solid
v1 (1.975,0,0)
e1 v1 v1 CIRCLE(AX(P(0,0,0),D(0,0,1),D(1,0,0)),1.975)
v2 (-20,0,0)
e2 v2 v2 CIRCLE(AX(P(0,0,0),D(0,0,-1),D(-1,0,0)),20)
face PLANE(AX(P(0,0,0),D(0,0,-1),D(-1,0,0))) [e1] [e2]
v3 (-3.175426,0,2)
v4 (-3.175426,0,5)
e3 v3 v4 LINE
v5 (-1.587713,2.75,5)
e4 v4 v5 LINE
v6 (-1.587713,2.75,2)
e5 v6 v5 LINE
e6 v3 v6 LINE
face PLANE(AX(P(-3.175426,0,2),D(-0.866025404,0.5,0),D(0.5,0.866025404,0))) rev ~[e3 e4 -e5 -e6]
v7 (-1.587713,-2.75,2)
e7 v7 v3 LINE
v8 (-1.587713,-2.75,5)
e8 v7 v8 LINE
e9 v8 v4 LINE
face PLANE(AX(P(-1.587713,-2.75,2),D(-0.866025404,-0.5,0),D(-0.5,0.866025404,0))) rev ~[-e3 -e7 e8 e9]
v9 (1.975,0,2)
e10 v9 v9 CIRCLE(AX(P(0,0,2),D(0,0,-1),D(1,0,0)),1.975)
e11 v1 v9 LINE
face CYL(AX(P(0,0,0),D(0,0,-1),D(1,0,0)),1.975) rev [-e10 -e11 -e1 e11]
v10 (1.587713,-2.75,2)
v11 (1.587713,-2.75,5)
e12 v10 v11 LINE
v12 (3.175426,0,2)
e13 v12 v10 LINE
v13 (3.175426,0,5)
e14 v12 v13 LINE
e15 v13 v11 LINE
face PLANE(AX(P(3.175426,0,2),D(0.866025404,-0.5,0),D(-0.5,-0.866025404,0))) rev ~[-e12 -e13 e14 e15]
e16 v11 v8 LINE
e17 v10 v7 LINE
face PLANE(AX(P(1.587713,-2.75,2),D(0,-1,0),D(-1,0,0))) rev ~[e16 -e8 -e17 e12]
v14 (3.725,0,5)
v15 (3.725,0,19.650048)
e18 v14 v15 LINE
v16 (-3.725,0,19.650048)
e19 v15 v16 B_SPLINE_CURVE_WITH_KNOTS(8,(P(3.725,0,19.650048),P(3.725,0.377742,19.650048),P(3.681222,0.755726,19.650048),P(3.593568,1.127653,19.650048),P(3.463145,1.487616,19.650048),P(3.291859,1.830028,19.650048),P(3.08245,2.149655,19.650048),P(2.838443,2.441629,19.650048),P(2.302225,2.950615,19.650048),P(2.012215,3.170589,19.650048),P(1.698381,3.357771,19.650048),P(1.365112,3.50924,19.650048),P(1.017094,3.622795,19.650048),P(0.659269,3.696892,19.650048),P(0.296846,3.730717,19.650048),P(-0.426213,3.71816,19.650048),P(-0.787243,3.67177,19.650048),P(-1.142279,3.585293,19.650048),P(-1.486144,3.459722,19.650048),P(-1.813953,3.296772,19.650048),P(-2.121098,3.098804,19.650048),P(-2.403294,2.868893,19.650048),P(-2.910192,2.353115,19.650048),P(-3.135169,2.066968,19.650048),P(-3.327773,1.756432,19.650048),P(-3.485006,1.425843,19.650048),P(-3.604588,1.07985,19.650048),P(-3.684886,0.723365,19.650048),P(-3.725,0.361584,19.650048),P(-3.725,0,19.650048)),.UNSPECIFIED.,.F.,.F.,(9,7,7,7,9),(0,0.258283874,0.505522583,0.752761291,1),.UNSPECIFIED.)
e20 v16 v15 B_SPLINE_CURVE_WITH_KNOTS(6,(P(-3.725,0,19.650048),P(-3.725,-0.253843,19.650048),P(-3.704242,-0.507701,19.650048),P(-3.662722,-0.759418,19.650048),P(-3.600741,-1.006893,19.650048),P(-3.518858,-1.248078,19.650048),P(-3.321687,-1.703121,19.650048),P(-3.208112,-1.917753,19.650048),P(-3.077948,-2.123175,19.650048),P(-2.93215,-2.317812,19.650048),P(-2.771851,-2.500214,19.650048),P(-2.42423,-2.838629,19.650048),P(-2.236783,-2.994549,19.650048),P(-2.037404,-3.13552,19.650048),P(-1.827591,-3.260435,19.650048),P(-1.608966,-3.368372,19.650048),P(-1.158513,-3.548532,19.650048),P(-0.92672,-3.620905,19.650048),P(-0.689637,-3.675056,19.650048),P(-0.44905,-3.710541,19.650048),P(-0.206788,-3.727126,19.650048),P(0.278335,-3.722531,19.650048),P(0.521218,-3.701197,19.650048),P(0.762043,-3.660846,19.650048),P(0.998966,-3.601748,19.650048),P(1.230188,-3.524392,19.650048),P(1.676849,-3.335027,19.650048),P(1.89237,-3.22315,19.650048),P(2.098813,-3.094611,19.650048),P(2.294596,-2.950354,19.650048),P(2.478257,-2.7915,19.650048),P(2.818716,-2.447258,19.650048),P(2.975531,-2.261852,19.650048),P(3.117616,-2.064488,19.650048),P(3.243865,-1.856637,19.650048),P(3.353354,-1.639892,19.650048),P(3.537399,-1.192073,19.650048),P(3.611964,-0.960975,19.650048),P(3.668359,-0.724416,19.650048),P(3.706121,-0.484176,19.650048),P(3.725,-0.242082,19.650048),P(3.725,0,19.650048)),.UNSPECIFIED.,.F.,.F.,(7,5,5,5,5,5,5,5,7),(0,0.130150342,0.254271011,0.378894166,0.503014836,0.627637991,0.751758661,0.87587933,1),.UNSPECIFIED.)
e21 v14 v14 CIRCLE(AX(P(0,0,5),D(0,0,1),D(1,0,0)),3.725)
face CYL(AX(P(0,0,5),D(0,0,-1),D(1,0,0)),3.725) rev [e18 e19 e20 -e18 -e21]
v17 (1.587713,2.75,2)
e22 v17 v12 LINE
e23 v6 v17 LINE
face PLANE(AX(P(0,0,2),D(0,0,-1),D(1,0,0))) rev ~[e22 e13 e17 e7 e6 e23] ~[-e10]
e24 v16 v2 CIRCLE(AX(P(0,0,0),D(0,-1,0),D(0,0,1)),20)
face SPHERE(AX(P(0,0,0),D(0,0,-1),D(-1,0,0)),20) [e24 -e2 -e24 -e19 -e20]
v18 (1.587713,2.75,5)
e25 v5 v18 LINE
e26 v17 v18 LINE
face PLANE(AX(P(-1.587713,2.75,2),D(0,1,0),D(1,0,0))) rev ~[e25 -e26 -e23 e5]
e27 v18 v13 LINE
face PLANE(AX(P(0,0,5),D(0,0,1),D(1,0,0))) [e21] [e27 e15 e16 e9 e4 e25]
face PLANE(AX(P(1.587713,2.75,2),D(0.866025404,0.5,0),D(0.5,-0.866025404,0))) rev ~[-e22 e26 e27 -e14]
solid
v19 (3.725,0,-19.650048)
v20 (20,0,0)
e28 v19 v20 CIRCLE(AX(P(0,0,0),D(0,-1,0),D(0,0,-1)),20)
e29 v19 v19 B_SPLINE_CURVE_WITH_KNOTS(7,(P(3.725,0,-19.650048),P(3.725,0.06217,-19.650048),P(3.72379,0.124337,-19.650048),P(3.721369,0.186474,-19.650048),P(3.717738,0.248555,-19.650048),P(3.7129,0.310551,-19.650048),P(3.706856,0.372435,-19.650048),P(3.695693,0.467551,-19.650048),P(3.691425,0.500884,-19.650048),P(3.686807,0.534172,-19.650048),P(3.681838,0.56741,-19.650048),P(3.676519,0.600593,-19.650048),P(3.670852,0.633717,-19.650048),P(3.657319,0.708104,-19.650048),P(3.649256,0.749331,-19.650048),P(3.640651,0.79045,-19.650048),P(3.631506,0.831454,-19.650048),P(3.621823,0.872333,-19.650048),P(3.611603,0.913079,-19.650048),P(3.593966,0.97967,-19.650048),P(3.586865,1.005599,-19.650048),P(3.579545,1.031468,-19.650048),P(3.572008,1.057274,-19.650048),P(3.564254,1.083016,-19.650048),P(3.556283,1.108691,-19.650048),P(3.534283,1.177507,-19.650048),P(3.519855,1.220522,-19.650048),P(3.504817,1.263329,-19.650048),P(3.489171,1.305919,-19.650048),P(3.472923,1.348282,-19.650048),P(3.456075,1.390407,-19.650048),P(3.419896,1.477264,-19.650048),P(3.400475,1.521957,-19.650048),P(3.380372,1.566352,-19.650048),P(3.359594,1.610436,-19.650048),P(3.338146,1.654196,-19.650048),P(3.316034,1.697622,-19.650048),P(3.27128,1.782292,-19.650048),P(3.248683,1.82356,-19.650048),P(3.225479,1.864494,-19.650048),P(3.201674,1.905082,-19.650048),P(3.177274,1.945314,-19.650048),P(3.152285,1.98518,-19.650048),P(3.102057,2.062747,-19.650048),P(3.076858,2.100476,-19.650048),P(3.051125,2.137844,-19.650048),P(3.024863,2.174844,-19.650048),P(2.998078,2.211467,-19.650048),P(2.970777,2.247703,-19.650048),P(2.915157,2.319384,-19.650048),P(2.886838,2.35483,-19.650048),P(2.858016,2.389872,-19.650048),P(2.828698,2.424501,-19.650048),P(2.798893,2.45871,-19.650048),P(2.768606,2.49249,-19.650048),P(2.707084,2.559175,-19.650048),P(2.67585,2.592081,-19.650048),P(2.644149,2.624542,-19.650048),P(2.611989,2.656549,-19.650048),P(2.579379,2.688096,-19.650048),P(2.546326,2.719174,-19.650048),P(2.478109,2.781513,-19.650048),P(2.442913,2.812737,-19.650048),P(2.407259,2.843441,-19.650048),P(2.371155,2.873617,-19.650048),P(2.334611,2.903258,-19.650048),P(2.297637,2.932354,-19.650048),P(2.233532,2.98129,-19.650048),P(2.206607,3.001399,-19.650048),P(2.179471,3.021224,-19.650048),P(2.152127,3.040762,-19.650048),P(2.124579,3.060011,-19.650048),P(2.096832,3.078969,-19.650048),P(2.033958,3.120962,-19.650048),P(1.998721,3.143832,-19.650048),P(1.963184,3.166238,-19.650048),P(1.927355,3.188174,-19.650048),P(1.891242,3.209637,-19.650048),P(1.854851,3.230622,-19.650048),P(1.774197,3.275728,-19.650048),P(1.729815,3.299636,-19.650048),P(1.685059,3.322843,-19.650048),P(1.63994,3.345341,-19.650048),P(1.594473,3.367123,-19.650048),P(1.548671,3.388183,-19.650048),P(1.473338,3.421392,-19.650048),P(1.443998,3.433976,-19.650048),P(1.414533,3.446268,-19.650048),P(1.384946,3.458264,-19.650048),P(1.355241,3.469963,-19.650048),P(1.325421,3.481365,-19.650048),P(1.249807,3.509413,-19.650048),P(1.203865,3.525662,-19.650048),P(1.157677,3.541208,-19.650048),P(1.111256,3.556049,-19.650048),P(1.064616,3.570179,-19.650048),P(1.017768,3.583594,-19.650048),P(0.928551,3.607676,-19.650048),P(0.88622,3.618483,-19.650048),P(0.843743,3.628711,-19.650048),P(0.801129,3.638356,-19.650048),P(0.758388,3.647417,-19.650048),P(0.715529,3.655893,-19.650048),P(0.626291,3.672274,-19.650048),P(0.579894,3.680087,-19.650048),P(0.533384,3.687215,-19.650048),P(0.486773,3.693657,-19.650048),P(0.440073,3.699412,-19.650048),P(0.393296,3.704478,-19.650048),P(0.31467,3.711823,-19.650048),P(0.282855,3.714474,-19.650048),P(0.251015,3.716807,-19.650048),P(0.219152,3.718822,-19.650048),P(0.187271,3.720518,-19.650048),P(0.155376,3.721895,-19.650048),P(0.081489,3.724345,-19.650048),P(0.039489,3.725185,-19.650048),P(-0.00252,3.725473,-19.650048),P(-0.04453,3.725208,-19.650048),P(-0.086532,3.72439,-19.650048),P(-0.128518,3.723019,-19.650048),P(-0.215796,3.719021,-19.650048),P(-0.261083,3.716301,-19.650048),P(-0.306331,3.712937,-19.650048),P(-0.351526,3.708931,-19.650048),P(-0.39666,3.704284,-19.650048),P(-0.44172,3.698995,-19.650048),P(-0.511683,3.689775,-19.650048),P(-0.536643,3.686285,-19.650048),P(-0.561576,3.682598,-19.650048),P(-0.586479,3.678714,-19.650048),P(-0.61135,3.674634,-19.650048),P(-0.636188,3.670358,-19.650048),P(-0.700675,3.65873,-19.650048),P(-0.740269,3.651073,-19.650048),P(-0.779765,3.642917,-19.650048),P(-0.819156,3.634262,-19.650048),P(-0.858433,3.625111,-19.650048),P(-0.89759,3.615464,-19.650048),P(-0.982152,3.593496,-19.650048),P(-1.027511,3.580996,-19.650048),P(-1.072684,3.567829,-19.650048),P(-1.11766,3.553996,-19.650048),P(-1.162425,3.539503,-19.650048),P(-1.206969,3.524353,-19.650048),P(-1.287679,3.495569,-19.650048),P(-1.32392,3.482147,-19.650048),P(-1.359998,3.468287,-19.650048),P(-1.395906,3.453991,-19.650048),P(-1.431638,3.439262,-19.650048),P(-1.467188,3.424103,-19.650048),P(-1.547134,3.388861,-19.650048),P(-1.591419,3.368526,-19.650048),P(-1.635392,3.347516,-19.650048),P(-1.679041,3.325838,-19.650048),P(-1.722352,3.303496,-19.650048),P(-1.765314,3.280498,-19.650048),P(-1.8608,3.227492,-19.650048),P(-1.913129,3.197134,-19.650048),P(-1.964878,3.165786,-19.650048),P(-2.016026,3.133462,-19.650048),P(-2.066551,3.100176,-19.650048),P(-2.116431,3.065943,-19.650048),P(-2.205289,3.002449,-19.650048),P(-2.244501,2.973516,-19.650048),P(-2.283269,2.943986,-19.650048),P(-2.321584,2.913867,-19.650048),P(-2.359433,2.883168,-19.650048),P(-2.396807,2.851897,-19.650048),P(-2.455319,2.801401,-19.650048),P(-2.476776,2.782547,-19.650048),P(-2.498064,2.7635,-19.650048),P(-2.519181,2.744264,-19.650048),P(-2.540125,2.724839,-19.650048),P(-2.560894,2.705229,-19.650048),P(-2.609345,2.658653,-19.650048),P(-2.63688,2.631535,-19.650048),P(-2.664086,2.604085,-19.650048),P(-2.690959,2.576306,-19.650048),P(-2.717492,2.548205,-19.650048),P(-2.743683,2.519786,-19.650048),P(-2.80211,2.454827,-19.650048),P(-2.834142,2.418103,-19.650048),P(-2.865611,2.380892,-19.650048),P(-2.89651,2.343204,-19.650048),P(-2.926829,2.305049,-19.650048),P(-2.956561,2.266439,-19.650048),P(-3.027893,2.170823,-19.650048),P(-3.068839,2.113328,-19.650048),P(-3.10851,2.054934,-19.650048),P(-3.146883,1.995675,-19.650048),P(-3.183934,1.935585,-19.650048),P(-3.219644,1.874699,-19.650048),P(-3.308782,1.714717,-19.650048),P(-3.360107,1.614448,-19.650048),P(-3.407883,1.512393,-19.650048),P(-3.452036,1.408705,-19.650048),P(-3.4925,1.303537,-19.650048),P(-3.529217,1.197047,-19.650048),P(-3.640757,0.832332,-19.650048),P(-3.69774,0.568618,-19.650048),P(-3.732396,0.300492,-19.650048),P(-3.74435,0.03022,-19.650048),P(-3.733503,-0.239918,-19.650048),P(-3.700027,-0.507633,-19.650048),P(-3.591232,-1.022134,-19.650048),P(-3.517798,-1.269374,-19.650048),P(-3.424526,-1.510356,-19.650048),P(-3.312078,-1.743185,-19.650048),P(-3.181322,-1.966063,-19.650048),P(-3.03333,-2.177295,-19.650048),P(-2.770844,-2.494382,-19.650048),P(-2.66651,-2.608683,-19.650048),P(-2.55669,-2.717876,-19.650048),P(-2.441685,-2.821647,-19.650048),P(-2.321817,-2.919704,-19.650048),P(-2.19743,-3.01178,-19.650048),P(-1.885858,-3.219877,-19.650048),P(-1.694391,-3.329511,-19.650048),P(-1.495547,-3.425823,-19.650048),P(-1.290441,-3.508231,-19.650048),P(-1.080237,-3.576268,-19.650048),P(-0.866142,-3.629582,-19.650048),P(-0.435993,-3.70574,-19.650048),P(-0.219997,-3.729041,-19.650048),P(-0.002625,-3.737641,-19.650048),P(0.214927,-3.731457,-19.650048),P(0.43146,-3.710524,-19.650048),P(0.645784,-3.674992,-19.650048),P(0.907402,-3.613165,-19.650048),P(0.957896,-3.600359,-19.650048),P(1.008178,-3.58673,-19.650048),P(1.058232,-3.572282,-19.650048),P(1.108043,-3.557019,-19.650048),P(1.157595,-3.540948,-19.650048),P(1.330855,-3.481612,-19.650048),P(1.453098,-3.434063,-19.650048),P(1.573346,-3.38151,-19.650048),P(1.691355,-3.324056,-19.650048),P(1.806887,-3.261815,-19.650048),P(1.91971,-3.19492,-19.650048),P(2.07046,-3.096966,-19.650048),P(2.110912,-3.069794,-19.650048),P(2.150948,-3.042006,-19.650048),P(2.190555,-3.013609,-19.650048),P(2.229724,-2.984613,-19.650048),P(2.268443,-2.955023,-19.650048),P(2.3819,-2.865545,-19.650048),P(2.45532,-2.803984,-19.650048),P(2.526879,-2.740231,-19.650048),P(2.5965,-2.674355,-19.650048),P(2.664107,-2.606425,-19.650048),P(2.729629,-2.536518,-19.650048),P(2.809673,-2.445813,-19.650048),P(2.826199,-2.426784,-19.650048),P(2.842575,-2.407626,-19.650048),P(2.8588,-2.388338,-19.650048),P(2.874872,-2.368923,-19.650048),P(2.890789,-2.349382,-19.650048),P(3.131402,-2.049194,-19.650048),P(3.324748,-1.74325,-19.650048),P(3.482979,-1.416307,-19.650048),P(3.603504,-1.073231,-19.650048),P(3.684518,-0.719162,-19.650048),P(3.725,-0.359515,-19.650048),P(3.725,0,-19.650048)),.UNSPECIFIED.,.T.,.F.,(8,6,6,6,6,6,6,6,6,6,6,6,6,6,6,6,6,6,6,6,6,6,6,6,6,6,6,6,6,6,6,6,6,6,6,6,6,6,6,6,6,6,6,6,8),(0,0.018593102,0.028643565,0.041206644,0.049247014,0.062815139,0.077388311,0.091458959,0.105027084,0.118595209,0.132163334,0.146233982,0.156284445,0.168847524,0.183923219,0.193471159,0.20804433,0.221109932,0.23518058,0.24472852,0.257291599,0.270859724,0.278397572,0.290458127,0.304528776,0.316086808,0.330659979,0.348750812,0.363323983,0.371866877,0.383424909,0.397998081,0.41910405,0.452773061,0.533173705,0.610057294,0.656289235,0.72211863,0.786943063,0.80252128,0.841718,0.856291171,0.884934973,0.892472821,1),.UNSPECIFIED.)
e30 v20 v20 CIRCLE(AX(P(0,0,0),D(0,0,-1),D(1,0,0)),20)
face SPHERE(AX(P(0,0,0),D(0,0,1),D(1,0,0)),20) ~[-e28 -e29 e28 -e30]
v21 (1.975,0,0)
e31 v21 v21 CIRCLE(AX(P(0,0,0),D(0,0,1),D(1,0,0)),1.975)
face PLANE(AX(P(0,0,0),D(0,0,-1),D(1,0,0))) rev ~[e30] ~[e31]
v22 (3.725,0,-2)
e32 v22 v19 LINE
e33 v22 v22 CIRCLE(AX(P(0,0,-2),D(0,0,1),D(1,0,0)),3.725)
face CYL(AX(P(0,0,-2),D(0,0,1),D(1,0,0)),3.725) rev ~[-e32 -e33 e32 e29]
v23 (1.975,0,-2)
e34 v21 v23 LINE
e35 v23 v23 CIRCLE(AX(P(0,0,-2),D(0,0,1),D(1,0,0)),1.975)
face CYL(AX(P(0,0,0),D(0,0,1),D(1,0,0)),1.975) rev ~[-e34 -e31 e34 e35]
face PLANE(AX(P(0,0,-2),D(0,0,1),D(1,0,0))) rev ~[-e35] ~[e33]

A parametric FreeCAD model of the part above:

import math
import FreeCAD as App
import Part
import Sketcher
Q = App.Units.Quantity


def add_polygon(sketch, points):
    """Adds a closed chain of lines whose ends are joined by coincident constraints."""
    first, n = sketch.GeometryCount, len(points)
    for a, b in zip(points, points[1:] + points[:1]):
        sketch.addGeometry(Part.LineSegment(App.Vector(*a, 0), App.Vector(*b, 0)), False)
    for i in range(n):
        sketch.addConstraint(Sketcher.Constraint("Coincident", first + i, 2, first + (i + 1) % n, 1))

doc = App.newDocument("Part")
body = doc.addObject("PartDesign::Body", "Body")

# Sketch on XZ plane
sketch1 = doc.addObject("Sketcher::SketchObject", "Sketch")
body.addObject(sketch1)
sketch1.AttachmentSupport = (doc.XZ_Plane, [""])
sketch1.MapMode = "FlatFace"
sketch1.addGeometry([
    Part.LineSegment(App.Vector(0, 0, 0), App.Vector(0, 20, 0)),
    Part.ArcOfCircle(Part.Circle(App.Vector(0, 0, 0), App.Vector(0, 0, 1), 20), math.radians(90), math.radians(180)),
    Part.LineSegment(App.Vector(-20, 0, 0), App.Vector(0, 0, 0)),
], False)
sketch1.addConstraint([
    Sketcher.Constraint("Coincident", 0, 2, 1, 1),
    Sketcher.Constraint("Coincident", 1, 2, 2, 1),
    Sketcher.Constraint("Coincident", 2, 2, 0, 1),
    Sketcher.Constraint("Vertical", 0),
    Sketcher.Constraint("Horizontal", 2),
    Sketcher.Constraint("Coincident", 1, 3, -1, 1),
    Sketcher.Constraint("Coincident", 2, 2, -1, 1),
    Sketcher.Constraint("Radius", 1, 20.0),
])
revolution = doc.addObject("PartDesign::Revolution", "Revolution")
body.addObject(revolution)
revolution.Profile = sketch1
revolution.ReferenceAxis = (sketch1, ["V_Axis"])
revolution.Angle = 360

# Sketch on XY plane
sketch2 = doc.addObject("Sketcher::SketchObject", "Sketch001")
body.addObject(sketch2)
sketch2.AttachmentSupport = (doc.XY_Plane, [""])
sketch2.MapMode = "FlatFace"
sketch2.AttachmentOffset = App.Placement(App.Vector(0, 0, 2), App.Rotation())
add_polygon(sketch2, [(1.587713, -2.75), (-1.587713, -2.75), (-3.175426, 0), (-1.587713, 2.75), (1.587713, 2.75), (3.175426, 0)])  # lines 0-5
sketch2.addConstraint([
    Sketcher.Constraint("Horizontal", 0),
    Sketcher.Constraint("Horizontal", 3),
    Sketcher.Constraint("Symmetric", 0, 2, 3, 2, -1, 1),
    Sketcher.Constraint("Symmetric", 1, 2, 4, 2, -1, 1),
    Sketcher.Constraint("PointOnObject", 1, 2, -1),
    Sketcher.Constraint("Parallel", 2, 5),
    Sketcher.Constraint("Vertical", 0, 2, 2, 2),
    Sketcher.Constraint("Angle", 1, Q("120 deg")),
    Sketcher.Constraint("DistanceY", 0, 2, 2, 2, 5.5),
    Sketcher.Constraint("DistanceX", 0, 2, 0, 1, 3.175426),
])
pocket1 = doc.addObject("PartDesign::Pocket", "Pocket")
body.addObject(pocket1)
pocket1.Profile = sketch2
pocket1.Length = 23
pocket1.Reversed = True
body2 = doc.addObject("PartDesign::Body", "Body001")

# Sketch on XZ plane
sketch3 = doc.addObject("Sketcher::SketchObject", "Sketch002")
body2.addObject(sketch3)
sketch3.AttachmentSupport = (doc.getObject("XZ_Plane001"), [""])
sketch3.MapMode = "FlatFace"
sketch3.addGeometry([
    Part.ArcOfCircle(Part.Circle(App.Vector(0, 0, 0), App.Vector(0, 0, 1), 20), math.radians(-90), math.radians(0)),
    Part.LineSegment(App.Vector(20, 0, 0), App.Vector(0, 0, 0)),
    Part.LineSegment(App.Vector(0, 0, 0), App.Vector(0, -20, 0)),
], False)
sketch3.addConstraint([
    Sketcher.Constraint("Coincident", 0, 2, 1, 1),
    Sketcher.Constraint("Coincident", 1, 2, 2, 1),
    Sketcher.Constraint("Coincident", 2, 2, 0, 1),
    Sketcher.Constraint("Horizontal", 1),
    Sketcher.Constraint("Vertical", 2),
    Sketcher.Constraint("Coincident", 0, 3, -1, 1),
    Sketcher.Constraint("Coincident", 1, 2, -1, 1),
    Sketcher.Constraint("Radius", 0, 20.0),
])
revolution2 = doc.addObject("PartDesign::Revolution", "Revolution001")
body2.addObject(revolution2)
revolution2.Profile = sketch3
revolution2.ReferenceAxis = (sketch3, ["V_Axis"])
revolution2.Angle = 360

# Sketch on XY plane
sketch4 = doc.addObject("Sketcher::SketchObject", "Sketch003")
body2.addObject(sketch4)
sketch4.AttachmentSupport = (doc.getObject("XY_Plane001"), [""])
sketch4.MapMode = "FlatFace"
sketch4.AttachmentOffset = App.Placement(App.Vector(0, 0, -2), App.Rotation())
sketch4.addGeometry(Part.Circle(App.Vector(0, 0, 0), App.Vector(0, 0, 1), 3.725), False)
sketch4.addConstraint([
    Sketcher.Constraint("Coincident", 0, 3, -1, 1),
    Sketcher.Constraint("Diameter", 0, 7.45),
])
pocket2 = doc.addObject("PartDesign::Pocket", "Pocket001")
body2.addObject(pocket2)
pocket2.Profile = sketch4
pocket2.Length = 23
body3 = doc.addObject("PartDesign::Body", "Body002")

# Sketch on XY plane
sketch5 = doc.addObject("Sketcher::SketchObject", "Sketch004")
body3.addObject(sketch5)
sketch5.AttachmentSupport = (doc.getObject("XY_Plane002"), [""])
sketch5.MapMode = "FlatFace"
sketch5.addGeometry(Part.Circle(App.Vector(0, 0, 0), App.Vector(0, 0, 1), 1.975), False)
sketch5.addConstraint([
    Sketcher.Constraint("Coincident", 0, 3, -1, 1),
    Sketcher.Constraint("Diameter", 0, 3.95),
])
pad1 = doc.addObject("PartDesign::Pad", "Pad")
body3.addObject(pad1)
pad1.Profile = sketch5
pad1.Type = "TwoLengths"
pad1.Length = 25
pad1.Length2 = 25
pad1.Reversed = True
doc.recompute()

body4 = doc.addObject("PartDesign::Body", "Body003")
body4.BaseFeature = body3
boolean = doc.addObject("PartDesign::Boolean", "Boolean")
body.addObject(boolean)
boolean.Type = "Cut"
boolean.addObjects([body4])
doc.recompute()

# Sketch on XY plane
sketch6 = doc.addObject("Sketcher::SketchObject", "Sketch005")
body.addObject(sketch6)
sketch6.AttachmentSupport = (doc.XY_Plane, [""])
sketch6.MapMode = "FlatFace"
sketch6.AttachmentOffset = App.Placement(App.Vector(0, 0, 5), App.Rotation())
sketch6.addGeometry(Part.Circle(App.Vector(0, 0, 0), App.Vector(0, 0, 1), 3.725), False)
sketch6.addConstraint([
    Sketcher.Constraint("Coincident", 0, 3, -1, 1),
    Sketcher.Constraint("Diameter", 0, 7.45),
])
pocket3 = doc.addObject("PartDesign::Pocket", "Pocket002")
body.addObject(pocket3)
pocket3.Profile = sketch6
pocket3.Length = 29.2
pocket3.Reversed = True
doc.recompute()

boolean2 = doc.addObject("PartDesign::Boolean", "Boolean001")
body2.addObject(boolean2)
boolean2.Type = "Cut"
boolean2.addObjects([body3])

doc.recompute()
